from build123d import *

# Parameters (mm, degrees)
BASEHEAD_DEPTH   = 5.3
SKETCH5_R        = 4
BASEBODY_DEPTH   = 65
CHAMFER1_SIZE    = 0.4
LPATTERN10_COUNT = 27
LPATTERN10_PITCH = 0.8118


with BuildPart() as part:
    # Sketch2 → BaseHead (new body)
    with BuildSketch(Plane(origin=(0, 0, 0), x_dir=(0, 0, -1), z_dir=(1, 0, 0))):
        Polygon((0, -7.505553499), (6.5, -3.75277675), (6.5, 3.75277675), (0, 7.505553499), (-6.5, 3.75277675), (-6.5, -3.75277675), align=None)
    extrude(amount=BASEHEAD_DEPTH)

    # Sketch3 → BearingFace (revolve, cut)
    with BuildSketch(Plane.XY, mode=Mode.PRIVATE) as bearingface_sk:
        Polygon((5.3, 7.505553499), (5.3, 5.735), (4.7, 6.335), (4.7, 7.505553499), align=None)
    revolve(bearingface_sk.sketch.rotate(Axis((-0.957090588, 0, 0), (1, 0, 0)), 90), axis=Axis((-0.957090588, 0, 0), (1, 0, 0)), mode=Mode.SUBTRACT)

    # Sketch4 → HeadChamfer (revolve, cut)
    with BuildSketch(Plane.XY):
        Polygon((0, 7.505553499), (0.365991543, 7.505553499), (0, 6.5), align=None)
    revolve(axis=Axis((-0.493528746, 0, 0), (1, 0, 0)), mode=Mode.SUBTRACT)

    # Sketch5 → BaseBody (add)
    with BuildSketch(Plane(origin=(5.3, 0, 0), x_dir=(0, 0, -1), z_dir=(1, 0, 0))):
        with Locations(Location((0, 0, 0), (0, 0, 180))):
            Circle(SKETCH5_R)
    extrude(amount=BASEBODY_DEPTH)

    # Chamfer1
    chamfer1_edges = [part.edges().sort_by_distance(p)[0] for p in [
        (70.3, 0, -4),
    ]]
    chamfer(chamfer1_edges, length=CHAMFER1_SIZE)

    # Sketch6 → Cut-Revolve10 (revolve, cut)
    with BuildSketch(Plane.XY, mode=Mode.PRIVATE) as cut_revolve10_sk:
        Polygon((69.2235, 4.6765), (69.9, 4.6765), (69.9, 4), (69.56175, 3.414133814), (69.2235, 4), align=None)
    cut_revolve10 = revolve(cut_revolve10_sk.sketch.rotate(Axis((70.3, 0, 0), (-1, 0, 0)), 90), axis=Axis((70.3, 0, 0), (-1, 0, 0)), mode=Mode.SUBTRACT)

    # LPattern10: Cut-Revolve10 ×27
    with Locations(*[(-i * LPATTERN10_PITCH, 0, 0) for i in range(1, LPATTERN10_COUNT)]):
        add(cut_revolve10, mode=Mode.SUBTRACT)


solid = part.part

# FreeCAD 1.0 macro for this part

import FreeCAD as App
import Part
import Sketcher

V = App.Vector
Q = App.Units.Quantity


def edges_at(feature, points):
    """Names of the edges that pass closest to the given points."""
    edges = feature.Shape.Edges
    near = lambda p: min(range(len(edges)), key=lambda i: edges[i].distToShape(Part.Vertex(*p))[0])
    return sorted({f"Edge{near(p) + 1}" for p in points})

doc = App.newDocument("Part")
params = doc.addObject("Spreadsheet::Sheet", "Params")
for row, (alias, value) in enumerate([
    ("pad1_length", "5.3 mm"),
    ("sketch2_width", "0.6 mm"),
    ("groove_angle", "360 deg"),
    ("groove2_angle", "360 deg"),
    ("sketch4_diameter", "8 mm"),
    ("pad2_length", "65 mm"),
    ("chamfer_size", "0.4 mm"),
    ("groove3_angle", "360 deg"),
    ("linearpattern_pitch", "0.8118 mm"),
], start=1):
    params.set(f"A{row}", alias)
    params.set(f"B{row}", "=" + value)
    params.setAlias(f"B{row}", alias)

body = doc.addObject("PartDesign::Body", "Body")

sketch1 = body.newObject("Sketcher::SketchObject", "Sketch")
sketch1.AttachmentSupport = (doc.getObject("YZ_Plane"), [""])
sketch1.MapMode = "FlatFace"
sketch1.addGeometry(Part.LineSegment(V(-8, 0, 0), V(-4, -6, 0)), False)
sketch1.addGeometry(Part.LineSegment(V(-4, -6, 0), V(4, -6, 0)), False)
sketch1.addGeometry(Part.LineSegment(V(4, -6, 0), V(8, 0, 0)), False)
sketch1.addGeometry(Part.LineSegment(V(8, 0, 0), V(4, 6, 0)), False)
sketch1.addGeometry(Part.LineSegment(V(4, 6, 0), V(-4, 6, 0)), False)
sketch1.addGeometry(Part.LineSegment(V(-4, 6, 0), V(-8, 0, 0)), False)
sketch1.addConstraint(Sketcher.Constraint("Coincident", 0, 2, 1, 1))
sketch1.addConstraint(Sketcher.Constraint("Coincident", 1, 2, 2, 1))
sketch1.addConstraint(Sketcher.Constraint("Coincident", 2, 2, 3, 1))
sketch1.addConstraint(Sketcher.Constraint("Coincident", 3, 2, 4, 1))
sketch1.addConstraint(Sketcher.Constraint("Coincident", 4, 2, 5, 1))
sketch1.addConstraint(Sketcher.Constraint("Coincident", 5, 2, 0, 1))
sketch1.addConstraint(Sketcher.Constraint("Horizontal", 1))
sketch1.addConstraint(Sketcher.Constraint("Horizontal", 4))
sketch1.addConstraint(Sketcher.Constraint("Symmetric", 0, 2, 3, 2, -1, 1))
sketch1.addConstraint(Sketcher.Constraint("Symmetric", 2, 2, 5, 2, -1, 1))
sketch1.addConstraint(Sketcher.Constraint("PointOnObject", 2, 2, -1))
sketch1.addConstraint(Sketcher.Constraint("Parallel", 2, 5))
sketch1.addConstraint(Sketcher.Constraint("Vertical", 1, 2, 3, 2))
sketch1.addConstraint(Sketcher.Constraint("Angle", 0, Q("-60 deg")))
sketch1.addConstraint(Sketcher.Constraint("DistanceY", 1, 2, 3, 2, 13.0))
sketch1.addConstraint(Sketcher.Constraint("DistanceX", 1, 1, 1, 2, 7.505554))
pad1 = body.newObject("PartDesign::Pad", "Pad")
pad1.Profile = sketch1
pad1.setExpression("Length", "Params.pad1_length")

sketch2 = body.newObject("Sketcher::SketchObject", "Sketch001")
sketch2.AttachmentSupport = (doc.getObject("XY_Plane"), [""])
sketch2.MapMode = "FlatFace"
sketch2.addGeometry(Part.LineSegment(V(5.3, 5.7, 0), V(5.3, 7.5, 0)), False)
sketch2.addGeometry(Part.LineSegment(V(5.3, 7.5, 0), V(4.7, 7.5, 0)), False)
sketch2.addGeometry(Part.LineSegment(V(4.7, 7.5, 0), V(4.7, 6.3, 0)), False)
sketch2.addGeometry(Part.LineSegment(V(4.7, 6.3, 0), V(5.3, 5.7, 0)), False)
sketch2.addConstraint(Sketcher.Constraint("Coincident", 0, 2, 1, 1))
sketch2.addConstraint(Sketcher.Constraint("Coincident", 1, 2, 2, 1))
sketch2.addConstraint(Sketcher.Constraint("Coincident", 2, 2, 3, 1))
sketch2.addConstraint(Sketcher.Constraint("Coincident", 3, 2, 0, 1))
sketch2.addConstraint(Sketcher.Constraint("Vertical", 0))
sketch2.addConstraint(Sketcher.Constraint("Horizontal", 1))
sketch2.addConstraint(Sketcher.Constraint("Vertical", 2))
sketch2.addConstraint(Sketcher.Constraint("Angle", 3, Q("-45 deg")))
sketch2.addConstraint(Sketcher.Constraint("DistanceX", 1, 2, 1, 1, 0.6))
sketch2.addConstraint(Sketcher.Constraint("DistanceX", -1, 1, 0, 2, 5.3))
sketch2.addConstraint(Sketcher.Constraint("DistanceY", -1, 1, 2, 2, 6.335))
sketch2.addConstraint(Sketcher.Constraint("DistanceY", 0, 1, 0, 2, 1.770553))
sketch2.setExpression("Constraints[8]", "Params.sketch2_width")
groove = body.newObject("PartDesign::Groove", "Groove")
groove.Profile = sketch2
groove.ReferenceAxis = (sketch2, ["H_Axis"])
groove.setExpression("Angle", "Params.groove_angle")

sketch3 = body.newObject("Sketcher::SketchObject", "Sketch002")
sketch3.AttachmentSupport = (doc.getObject("XY_Plane"), [""])
sketch3.MapMode = "FlatFace"
sketch3.addGeometry(Part.LineSegment(V(0.37, 7.51, 0), V(0, 7.51, 0)), False)
sketch3.addGeometry(Part.LineSegment(V(0, 7.51, 0), V(0, 6.5, 0)), False)
sketch3.addGeometry(Part.LineSegment(V(0, 6.5, 0), V(0.37, 7.51, 0)), False)
sketch3.addConstraint(Sketcher.Constraint("Coincident", 0, 2, 1, 1))
sketch3.addConstraint(Sketcher.Constraint("Coincident", 1, 2, 2, 1))
sketch3.addConstraint(Sketcher.Constraint("Coincident", 2, 2, 0, 1))
sketch3.addConstraint(Sketcher.Constraint("Horizontal", 0))
sketch3.addConstraint(Sketcher.Constraint("Vertical", 1))
sketch3.addConstraint(Sketcher.Constraint("PointOnObject", 0, 2, -2))
sketch3.addConstraint(Sketcher.Constraint("Angle", 2, Q("70 deg")))
sketch3.addConstraint(Sketcher.Constraint("DistanceY", -1, 1, 1, 2, 6.5))
sketch3.addConstraint(Sketcher.Constraint("DistanceX", 0, 2, 0, 1, 0.365992))
groove2 = body.newObject("PartDesign::Groove", "Groove001")
groove2.Profile = sketch3
groove2.ReferenceAxis = (sketch3, ["H_Axis"])
groove2.setExpression("Angle", "Params.groove2_angle")

sketch4 = body.newObject("Sketcher::SketchObject", "Sketch003")
sketch4.AttachmentSupport = (doc.getObject("YZ_Plane"), [""])
sketch4.MapMode = "FlatFace"
sketch4.AttachmentOffset = App.Placement(V(0, 0, 5.3), App.Rotation())
sketch4.addGeometry(Part.Circle(V(0, 0, 0), V(0, 0, 1), 4), False)
sketch4.addConstraint(Sketcher.Constraint("Coincident", 0, 3, -1, 1))
sketch4.addConstraint(Sketcher.Constraint("Diameter", 0, 8.0))
sketch4.setExpression("Constraints[1]", "Params.sketch4_diameter")
pad2 = body.newObject("PartDesign::Pad", "Pad001")
pad2.Profile = sketch4
pad2.setExpression("Length", "Params.pad2_length")
doc.recompute()

chamfer = body.newObject("PartDesign::Chamfer", "Chamfer")
chamfer.Base = (pad2, edges_at(pad2, [(70.3, 0, -4)]))
chamfer.setExpression("Size", "Params.chamfer_size")

sketch5 = body.newObject("Sketcher::SketchObject", "Sketch004")
sketch5.AttachmentSupport = (doc.getObject("XY_Plane"), [""])
sketch5.MapMode = "FlatFace"
sketch5.addGeometry(Part.LineSegment(V(69.9, 4.7, 0), V(69.2, 4.7, 0)), False)
sketch5.addGeometry(Part.LineSegment(V(69.2, 4.7, 0), V(69.2, 4, 0)), False)
sketch5.addGeometry(Part.LineSegment(V(69.2, 4, 0), V(69.6, 3.4, 0)), False)
sketch5.addGeometry(Part.LineSegment(V(69.6, 3.4, 0), V(69.9, 4, 0)), False)
sketch5.addGeometry(Part.LineSegment(V(69.9, 4, 0), V(69.9, 4.7, 0)), False)
sketch5.addConstraint(Sketcher.Constraint("Coincident", 0, 2, 1, 1))
sketch5.addConstraint(Sketcher.Constraint("Coincident", 1, 2, 2, 1))
sketch5.addConstraint(Sketcher.Constraint("Coincident", 2, 2, 3, 1))
sketch5.addConstraint(Sketcher.Constraint("Coincident", 3, 2, 4, 1))
sketch5.addConstraint(Sketcher.Constraint("Coincident", 4, 2, 0, 1))
sketch5.addConstraint(Sketcher.Constraint("Horizontal", 0))
sketch5.addConstraint(Sketcher.Constraint("Vertical", 1))
sketch5.addConstraint(Sketcher.Constraint("Vertical", 4))
sketch5.addConstraint(Sketcher.Constraint("Horizontal", 1, 2, 3, 2))
sketch5.addConstraint(Sketcher.Constraint("Equal", 0, 1))
sketch5.addConstraint(Sketcher.Constraint("Equal", 2, 3))
sketch5.addConstraint(Sketcher.Constraint("Angle", 2, Q("-60 deg")))
sketch5.addConstraint(Sketcher.Constraint("DistanceY", -1, 1, 1, 2, 4.0))
sketch5.addConstraint(Sketcher.Constraint("DistanceX", -1, 1, 3, 2, 69.9))
sketch5.addConstraint(Sketcher.Constraint("DistanceX", 0, 2, 0, 1, 0.6765))
groove3 = body.newObject("PartDesign::Groove", "Groove002")
groove3.Profile = sketch5
groove3.ReferenceAxis = (sketch5, ["H_Axis"])
groove3.setExpression("Angle", "Params.groove3_angle")
doc.recompute()

linearpattern = body.newObject("PartDesign::LinearPattern", "LinearPattern")
linearpattern.Originals = [groove3]
linearpattern.Direction = (doc.getObject("X_Axis"), [""])
linearpattern.Mode = "offset"
linearpattern.setExpression("Offset", "Params.linearpattern_pitch")
linearpattern.Occurrences = 27
linearpattern.Reversed = True
body.Tip = linearpattern

doc.recompute()
